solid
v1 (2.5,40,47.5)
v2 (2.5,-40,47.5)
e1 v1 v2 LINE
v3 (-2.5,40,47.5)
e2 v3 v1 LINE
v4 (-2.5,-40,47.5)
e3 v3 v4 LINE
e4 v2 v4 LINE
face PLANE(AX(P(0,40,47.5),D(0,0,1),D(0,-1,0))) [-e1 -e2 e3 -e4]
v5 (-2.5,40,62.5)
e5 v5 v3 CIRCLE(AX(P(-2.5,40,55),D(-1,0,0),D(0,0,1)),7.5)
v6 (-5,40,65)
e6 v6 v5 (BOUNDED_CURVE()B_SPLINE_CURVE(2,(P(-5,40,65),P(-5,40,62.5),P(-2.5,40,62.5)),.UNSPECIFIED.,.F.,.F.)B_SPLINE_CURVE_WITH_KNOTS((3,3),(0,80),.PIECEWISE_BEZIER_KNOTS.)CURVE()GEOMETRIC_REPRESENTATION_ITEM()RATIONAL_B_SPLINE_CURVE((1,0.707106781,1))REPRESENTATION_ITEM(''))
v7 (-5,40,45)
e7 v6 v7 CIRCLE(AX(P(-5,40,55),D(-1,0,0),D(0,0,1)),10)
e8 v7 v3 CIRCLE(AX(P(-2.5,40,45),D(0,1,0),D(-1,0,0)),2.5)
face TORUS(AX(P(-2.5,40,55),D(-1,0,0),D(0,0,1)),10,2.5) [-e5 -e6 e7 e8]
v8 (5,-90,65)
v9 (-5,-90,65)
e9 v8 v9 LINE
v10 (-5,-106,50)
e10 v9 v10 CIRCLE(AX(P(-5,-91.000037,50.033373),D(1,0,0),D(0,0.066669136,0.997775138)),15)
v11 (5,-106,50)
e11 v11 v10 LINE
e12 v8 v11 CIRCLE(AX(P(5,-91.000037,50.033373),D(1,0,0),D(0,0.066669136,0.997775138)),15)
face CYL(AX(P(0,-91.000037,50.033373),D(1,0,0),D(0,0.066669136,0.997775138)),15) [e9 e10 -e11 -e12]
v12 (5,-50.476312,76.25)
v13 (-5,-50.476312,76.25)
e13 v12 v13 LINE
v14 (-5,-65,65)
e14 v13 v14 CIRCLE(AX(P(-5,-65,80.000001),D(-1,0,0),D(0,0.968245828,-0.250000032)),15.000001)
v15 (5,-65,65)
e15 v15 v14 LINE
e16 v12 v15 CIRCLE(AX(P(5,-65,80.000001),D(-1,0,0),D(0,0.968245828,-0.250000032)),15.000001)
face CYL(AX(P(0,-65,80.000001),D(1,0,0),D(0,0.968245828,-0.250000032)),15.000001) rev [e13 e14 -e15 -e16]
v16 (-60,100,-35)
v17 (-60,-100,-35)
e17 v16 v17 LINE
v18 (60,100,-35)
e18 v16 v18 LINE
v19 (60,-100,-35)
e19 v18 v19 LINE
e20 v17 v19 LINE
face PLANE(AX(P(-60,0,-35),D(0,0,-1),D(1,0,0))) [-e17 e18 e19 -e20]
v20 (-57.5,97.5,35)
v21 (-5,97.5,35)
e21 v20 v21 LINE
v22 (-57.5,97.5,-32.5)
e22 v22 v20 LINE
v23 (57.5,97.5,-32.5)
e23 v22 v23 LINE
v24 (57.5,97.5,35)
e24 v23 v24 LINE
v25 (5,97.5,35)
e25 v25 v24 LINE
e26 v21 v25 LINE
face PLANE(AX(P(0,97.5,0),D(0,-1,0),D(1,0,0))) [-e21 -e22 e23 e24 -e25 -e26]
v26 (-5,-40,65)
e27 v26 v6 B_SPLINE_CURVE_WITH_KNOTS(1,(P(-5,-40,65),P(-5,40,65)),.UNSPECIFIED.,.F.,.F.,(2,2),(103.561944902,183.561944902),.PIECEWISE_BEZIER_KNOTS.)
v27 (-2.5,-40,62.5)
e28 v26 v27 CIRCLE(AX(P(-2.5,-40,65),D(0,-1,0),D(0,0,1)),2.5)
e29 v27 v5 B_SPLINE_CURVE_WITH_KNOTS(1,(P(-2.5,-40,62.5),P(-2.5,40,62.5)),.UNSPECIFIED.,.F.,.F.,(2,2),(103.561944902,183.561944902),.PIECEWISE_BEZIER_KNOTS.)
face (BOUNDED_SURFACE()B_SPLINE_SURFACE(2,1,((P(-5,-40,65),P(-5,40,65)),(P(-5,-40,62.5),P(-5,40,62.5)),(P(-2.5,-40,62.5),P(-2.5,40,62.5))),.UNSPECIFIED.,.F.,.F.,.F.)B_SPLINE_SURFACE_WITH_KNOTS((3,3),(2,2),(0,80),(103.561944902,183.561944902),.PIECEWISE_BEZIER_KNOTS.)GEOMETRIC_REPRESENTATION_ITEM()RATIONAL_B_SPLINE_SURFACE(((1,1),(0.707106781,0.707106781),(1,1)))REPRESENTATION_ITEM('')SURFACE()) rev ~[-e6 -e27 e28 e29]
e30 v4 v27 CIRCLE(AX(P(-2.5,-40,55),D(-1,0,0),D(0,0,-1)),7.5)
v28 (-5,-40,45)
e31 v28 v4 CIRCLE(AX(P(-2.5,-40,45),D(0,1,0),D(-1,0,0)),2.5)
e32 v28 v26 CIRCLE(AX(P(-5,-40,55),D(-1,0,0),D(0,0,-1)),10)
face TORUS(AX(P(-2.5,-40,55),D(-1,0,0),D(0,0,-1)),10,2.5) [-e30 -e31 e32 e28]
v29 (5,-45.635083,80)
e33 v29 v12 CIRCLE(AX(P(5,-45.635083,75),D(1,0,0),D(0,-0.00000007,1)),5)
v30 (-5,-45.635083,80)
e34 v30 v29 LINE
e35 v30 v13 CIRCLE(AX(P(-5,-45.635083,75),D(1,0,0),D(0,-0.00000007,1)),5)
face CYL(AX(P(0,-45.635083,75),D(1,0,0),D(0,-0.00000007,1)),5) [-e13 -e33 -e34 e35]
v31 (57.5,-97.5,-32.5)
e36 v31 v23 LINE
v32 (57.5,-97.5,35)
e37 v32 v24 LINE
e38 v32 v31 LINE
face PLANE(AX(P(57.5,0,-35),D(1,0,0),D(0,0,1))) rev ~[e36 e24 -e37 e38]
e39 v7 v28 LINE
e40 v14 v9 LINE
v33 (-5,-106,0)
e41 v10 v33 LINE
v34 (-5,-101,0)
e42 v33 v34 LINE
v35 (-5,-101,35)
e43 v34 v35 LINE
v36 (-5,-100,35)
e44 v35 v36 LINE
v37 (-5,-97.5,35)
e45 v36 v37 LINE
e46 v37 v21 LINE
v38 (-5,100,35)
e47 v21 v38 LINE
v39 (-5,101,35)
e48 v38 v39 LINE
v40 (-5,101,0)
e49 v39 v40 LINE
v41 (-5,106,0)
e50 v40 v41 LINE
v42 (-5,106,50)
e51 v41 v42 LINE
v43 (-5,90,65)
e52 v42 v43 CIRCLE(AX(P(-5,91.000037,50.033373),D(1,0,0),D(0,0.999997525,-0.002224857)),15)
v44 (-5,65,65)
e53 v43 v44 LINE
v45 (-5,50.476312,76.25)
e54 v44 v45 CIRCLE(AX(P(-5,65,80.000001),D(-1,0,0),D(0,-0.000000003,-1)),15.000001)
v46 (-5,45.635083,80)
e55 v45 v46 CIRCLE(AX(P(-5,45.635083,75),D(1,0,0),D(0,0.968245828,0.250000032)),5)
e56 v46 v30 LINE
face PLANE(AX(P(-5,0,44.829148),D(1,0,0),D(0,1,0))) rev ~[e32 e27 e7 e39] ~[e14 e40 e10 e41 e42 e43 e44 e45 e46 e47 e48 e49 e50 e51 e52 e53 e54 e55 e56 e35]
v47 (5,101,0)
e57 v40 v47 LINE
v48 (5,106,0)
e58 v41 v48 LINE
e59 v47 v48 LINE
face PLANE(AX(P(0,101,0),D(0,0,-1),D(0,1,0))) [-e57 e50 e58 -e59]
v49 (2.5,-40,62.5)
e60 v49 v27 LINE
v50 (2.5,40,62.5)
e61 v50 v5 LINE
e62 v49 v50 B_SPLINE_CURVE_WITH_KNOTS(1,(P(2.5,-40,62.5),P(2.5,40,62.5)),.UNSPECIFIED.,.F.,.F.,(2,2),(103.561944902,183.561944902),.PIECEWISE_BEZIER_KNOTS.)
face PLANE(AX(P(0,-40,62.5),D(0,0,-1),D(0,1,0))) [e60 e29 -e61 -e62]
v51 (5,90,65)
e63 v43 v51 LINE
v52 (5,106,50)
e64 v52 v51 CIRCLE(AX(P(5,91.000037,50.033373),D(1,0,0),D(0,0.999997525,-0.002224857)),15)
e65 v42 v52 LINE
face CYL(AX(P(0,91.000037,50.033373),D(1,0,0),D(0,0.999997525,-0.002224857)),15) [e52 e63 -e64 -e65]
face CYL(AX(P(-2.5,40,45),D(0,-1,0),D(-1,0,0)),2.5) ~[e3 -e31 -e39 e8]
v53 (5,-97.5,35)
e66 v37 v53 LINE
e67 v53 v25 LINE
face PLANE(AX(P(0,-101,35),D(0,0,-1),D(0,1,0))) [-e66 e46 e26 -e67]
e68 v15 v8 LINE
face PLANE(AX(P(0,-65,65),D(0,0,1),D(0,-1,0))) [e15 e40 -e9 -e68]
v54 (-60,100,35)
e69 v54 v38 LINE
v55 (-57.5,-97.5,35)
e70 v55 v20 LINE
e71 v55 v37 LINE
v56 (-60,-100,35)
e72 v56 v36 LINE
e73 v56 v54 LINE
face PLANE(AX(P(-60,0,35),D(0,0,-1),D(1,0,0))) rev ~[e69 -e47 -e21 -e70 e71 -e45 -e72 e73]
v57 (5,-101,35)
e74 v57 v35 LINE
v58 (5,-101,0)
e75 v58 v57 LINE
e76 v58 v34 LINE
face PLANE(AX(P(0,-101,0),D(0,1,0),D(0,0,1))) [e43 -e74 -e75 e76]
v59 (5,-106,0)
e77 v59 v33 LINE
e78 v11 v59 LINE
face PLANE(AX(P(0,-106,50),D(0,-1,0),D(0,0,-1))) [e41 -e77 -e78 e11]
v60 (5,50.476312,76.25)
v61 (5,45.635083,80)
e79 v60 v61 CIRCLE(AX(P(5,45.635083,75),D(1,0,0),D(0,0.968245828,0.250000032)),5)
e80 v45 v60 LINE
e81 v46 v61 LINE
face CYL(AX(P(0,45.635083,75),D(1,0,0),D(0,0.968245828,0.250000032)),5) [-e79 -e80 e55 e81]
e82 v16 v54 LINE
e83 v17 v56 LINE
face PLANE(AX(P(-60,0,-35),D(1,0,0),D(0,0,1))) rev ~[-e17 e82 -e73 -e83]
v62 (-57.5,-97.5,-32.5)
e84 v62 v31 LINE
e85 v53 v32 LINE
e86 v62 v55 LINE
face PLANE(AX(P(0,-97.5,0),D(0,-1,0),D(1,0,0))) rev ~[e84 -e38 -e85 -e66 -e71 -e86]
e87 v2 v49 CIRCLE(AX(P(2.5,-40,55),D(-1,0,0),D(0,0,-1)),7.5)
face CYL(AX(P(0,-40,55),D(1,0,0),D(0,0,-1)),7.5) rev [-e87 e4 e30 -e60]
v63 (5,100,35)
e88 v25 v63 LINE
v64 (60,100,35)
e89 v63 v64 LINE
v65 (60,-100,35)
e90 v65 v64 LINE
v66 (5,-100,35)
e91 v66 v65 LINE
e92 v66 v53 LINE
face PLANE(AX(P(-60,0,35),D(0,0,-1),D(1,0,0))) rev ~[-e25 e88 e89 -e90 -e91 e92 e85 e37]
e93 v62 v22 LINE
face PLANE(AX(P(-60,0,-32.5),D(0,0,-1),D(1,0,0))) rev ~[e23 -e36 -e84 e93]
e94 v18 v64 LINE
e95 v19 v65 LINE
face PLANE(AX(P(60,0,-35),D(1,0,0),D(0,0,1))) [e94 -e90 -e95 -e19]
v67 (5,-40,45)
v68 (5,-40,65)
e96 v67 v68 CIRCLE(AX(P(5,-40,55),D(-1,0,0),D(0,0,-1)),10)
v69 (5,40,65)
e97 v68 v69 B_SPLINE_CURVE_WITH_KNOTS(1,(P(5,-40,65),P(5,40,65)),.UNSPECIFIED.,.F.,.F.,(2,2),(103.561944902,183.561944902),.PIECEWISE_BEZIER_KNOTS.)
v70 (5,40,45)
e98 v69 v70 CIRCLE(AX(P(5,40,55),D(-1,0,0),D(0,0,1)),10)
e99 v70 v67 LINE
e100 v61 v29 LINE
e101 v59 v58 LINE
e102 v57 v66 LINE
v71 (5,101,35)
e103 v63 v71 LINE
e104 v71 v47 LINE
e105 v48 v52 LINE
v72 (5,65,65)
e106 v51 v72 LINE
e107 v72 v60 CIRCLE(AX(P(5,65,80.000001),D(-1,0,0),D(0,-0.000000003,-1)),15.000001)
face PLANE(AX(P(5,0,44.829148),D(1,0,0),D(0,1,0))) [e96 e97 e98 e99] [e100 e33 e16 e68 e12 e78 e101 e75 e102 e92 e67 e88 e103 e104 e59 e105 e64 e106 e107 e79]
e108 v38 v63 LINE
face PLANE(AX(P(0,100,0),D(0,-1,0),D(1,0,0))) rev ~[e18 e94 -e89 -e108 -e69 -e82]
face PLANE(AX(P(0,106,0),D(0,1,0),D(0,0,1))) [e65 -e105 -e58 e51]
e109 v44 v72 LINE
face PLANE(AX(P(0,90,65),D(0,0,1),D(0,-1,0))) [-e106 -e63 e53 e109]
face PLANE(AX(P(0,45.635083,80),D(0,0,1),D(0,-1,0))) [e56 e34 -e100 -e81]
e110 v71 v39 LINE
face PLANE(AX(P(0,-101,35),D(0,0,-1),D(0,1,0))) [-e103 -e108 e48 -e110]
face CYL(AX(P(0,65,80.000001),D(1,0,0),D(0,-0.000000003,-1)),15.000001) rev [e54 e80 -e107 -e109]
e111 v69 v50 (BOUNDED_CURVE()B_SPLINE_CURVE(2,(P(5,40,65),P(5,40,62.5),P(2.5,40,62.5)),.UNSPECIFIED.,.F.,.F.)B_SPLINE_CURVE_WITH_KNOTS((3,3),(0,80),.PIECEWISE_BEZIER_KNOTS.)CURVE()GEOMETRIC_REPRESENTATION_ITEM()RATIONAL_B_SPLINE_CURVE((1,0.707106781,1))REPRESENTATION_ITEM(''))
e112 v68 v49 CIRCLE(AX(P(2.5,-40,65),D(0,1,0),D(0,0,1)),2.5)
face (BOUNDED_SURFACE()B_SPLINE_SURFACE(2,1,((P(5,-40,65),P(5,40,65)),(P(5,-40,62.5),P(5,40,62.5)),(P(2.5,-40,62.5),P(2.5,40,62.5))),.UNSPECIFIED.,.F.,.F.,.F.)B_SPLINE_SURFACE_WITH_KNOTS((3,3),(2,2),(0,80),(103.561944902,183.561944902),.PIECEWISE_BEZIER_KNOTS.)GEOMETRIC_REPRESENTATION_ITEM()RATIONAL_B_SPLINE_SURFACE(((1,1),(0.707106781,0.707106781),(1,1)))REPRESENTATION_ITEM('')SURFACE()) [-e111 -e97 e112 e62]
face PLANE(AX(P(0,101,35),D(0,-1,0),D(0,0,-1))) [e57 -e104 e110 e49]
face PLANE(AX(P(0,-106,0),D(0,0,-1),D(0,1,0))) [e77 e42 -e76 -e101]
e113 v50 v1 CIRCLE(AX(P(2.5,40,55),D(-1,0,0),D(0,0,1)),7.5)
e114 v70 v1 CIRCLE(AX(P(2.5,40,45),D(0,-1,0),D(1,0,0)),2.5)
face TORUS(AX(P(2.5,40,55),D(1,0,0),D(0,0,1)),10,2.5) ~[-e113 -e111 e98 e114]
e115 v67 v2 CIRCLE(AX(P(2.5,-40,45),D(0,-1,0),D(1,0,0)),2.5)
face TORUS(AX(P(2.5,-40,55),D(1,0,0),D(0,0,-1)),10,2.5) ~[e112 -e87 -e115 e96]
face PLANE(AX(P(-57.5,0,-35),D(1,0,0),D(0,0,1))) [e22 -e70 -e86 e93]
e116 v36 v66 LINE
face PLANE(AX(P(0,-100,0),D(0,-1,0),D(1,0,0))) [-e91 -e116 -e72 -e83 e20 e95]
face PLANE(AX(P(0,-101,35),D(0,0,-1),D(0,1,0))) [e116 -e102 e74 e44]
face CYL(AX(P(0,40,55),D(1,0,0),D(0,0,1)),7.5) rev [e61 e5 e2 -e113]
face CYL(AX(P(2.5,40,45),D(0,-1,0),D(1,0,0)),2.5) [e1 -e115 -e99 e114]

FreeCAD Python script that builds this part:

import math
import FreeCAD as App
import Part
import Sketcher

V = App.Vector


def edges_at(feature, points):
    """Names of the edges that pass closest to the given points."""
    edges = feature.Shape.Edges
    near = lambda p: min(range(len(edges)), key=lambda i: edges[i].distToShape(Part.Vertex(*p))[0])
    return sorted({f"Edge{near(p) + 1}" for p in points})


def faces_at(feature, points):
    """Names of the faces that lie closest to the given points."""
    faces = feature.Shape.Faces
    near = lambda p: min(range(len(faces)), key=lambda i: faces[i].distToShape(Part.Vertex(*p))[0])
    return sorted({f"Face{near(p) + 1}" for p in points})

doc = App.newDocument("Part")
params = doc.addObject("Spreadsheet::Sheet", "Params")
for row, (alias, value) in enumerate([
    ("sketch1_width", "120 mm"),
    ("sketch1_height", "70 mm"),
    ("pad1_length", "200 mm"),
    ("thickness_wall", "2.5 mm"),
    ("sketch2_radius", "15 mm"),
    ("sketch2_radius2", "5 mm"),
    ("sketch2_radius3", "7.5 mm"),
    ("sketch2_width", "5 mm"),
    ("sketch2_width2", "25 mm"),
    ("pad2_length", "10 mm"),
    ("fillet_radius", "2.5 mm"),
], start=1):
    params.set(f"A{row}", alias)
    params.set(f"B{row}", "=" + value)
    params.setAlias(f"B{row}", alias)

body = doc.addObject("PartDesign::Body", "Body")

# Sketch on XZ plane
sketch1 = body.newObject("Sketcher::SketchObject", "Sketch")
sketch1.AttachmentSupport = (doc.getObject("XZ_Plane"), [""])
sketch1.MapMode = "FlatFace"
sketch1.addGeometry([
    Part.LineSegment(V(-60, 35, 0), V(-60, -35, 0)),
    Part.LineSegment(V(-60, -35, 0), V(60, -35, 0)),
    Part.LineSegment(V(60, -35, 0), V(60, 35, 0)),
    Part.LineSegment(V(60, 35, 0), V(-60, 35, 0)),
], False)
sketch1.addConstraint([
    Sketcher.Constraint("Coincident", 0, 2, 1, 1),
    Sketcher.Constraint("Coincident", 1, 2, 2, 1),
    Sketcher.Constraint("Coincident", 2, 2, 3, 1),
    Sketcher.Constraint("Coincident", 3, 2, 0, 1),
    Sketcher.Constraint("Vertical", 0),
    Sketcher.Constraint("Horizontal", 1),
    Sketcher.Constraint("Vertical", 2),
    Sketcher.Constraint("Horizontal", 3),
    Sketcher.Constraint("Symmetric", 0, 2, 2, 2, -1, 1),
    Sketcher.Constraint("DistanceX", 1, 1, 1, 2, 120.0),
    Sketcher.Constraint("DistanceY", 0, 2, 0, 1, 70.0),
])
sketch1.setExpression("Constraints[9]", "Params.sketch1_width")
sketch1.setExpression("Constraints[10]", "Params.sketch1_height")
pad1 = body.newObject("PartDesign::Pad", "Pad")
pad1.Profile = sketch1
pad1.setExpression("Length", "Params.pad1_length")
pad1.Midplane = True
doc.recompute()

thickness = body.newObject("PartDesign::Thickness", "Thickness")
thickness.Base = (pad1, faces_at(pad1, [(0, 0, 35)]))
thickness.setExpression("Value", "Params.thickness_wall")
thickness.Reversed = True
thickness.Join = "Arc"

# Sketch on YZ plane
sketch2 = body.newObject("Sketcher::SketchObject", "Sketch001")
sketch2.AttachmentSupport = (doc.getObject("YZ_Plane"), [""])
sketch2.MapMode = "FlatFace"
sketch2.addGeometry([
    Part.LineSegment(V(101, 35, 0), V(101, 0, 0)),  # 0
    Part.LineSegment(V(101, 0, 0), V(106, 0, 0)),  # 1
    Part.LineSegment(V(106, 0, 0), V(106, 50, 0)),  # 2
    Part.ArcOfCircle(Part.Circle(V(91.000037, 50.033373, 0), V(0, 0, 1), 15), math.radians(-0.127475), math.radians(93.822696)),  # 3
    Part.LineSegment(V(90, 65, 0), V(65, 65, 0)),  # 4
    Part.ArcOfCircle(Part.Circle(V(65, 80.000001, 0), V(0, 0, 1), 15.000001), math.radians(-165.522486), math.radians(-90)),  # 5
    Part.ArcOfCircle(Part.Circle(V(45.635083, 75, 0), V(0, 0, 1), 5), math.radians(14.477514), math.radians(89.999996)),  # 6
    Part.LineSegment(V(45.635083, 80, 0), V(-45.635083, 80, 0)),  # 7
    Part.ArcOfCircle(Part.Circle(V(-45.635083, 75, 0), V(0, 0, 1), 5), math.radians(90.000004), math.radians(165.522486)),  # 8
    Part.ArcOfCircle(Part.Circle(V(-65, 80.000001, 0), V(0, 0, 1), 15.000001), math.radians(-90), math.radians(-14.477514)),  # 9
    Part.LineSegment(V(-65, 65, 0), V(-90, 65, 0)),  # 10
    Part.ArcOfCircle(Part.Circle(V(-91.000037, 50.033373, 0), V(0, 0, 1), 15), math.radians(86.177304), math.radians(180.127475)),  # 11
    Part.LineSegment(V(-106, 50, 0), V(-106, 0, 0)),  # 12
    Part.LineSegment(V(-106, 0, 0), V(-101, 0, 0)),  # 13
    Part.LineSegment(V(-101, 0, 0), V(-101, 35, 0)),  # 14
    Part.LineSegment(V(-101, 35, 0), V(101, 35, 0)),  # 15
    Part.ArcOfCircle(Part.Circle(V(40, 55, 0), V(0, 0, 1), 7.5), math.radians(-90), math.radians(90)),  # 16
    Part.LineSegment(V(40, 47.5, 0), V(-40, 47.5, 0)),  # 17
    Part.ArcOfCircle(Part.Circle(V(-40, 55, 0), V(0, 0, 1), 7.5), math.radians(90), math.radians(270)),  # 18
    Part.LineSegment(V(-40, 62.5, 0), V(40, 62.5, 0)),  # 19
], False)
sketch2.addConstraint([
    Sketcher.Constraint("Coincident", 0, 2, 1, 1),
    Sketcher.Constraint("Coincident", 1, 2, 2, 1),
    Sketcher.Constraint("Coincident", 2, 2, 3, 1),
    Sketcher.Constraint("Coincident", 3, 2, 4, 1),
    Sketcher.Constraint("Tangent", 4, 2, 5, 2),
    Sketcher.Constraint("Tangent", 5, 1, 6, 1),
    Sketcher.Constraint("Tangent", 6, 2, 7, 1),
    Sketcher.Constraint("Tangent", 7, 2, 8, 1),
    Sketcher.Constraint("Tangent", 8, 2, 9, 2),
    Sketcher.Constraint("Tangent", 9, 1, 10, 1),
    Sketcher.Constraint("Coincident", 10, 2, 11, 1),
    Sketcher.Constraint("Coincident", 11, 2, 12, 1),
    Sketcher.Constraint("Coincident", 12, 2, 13, 1),
    Sketcher.Constraint("Coincident", 13, 2, 14, 1),
    Sketcher.Constraint("Coincident", 14, 2, 15, 1),
    Sketcher.Constraint("Coincident", 15, 2, 0, 1),
    Sketcher.Constraint("Tangent", 16, 1, 17, 1),
    Sketcher.Constraint("Tangent", 17, 2, 18, 2),
    Sketcher.Constraint("Tangent", 18, 1, 19, 1),
    Sketcher.Constraint("Tangent", 19, 2, 16, 2),
    Sketcher.Constraint("Vertical", 0),
    Sketcher.Constraint("Horizontal", 1),
    Sketcher.Constraint("Vertical", 2),
    Sketcher.Constraint("Horizontal", 4),
    Sketcher.Constraint("Horizontal", 7),
    Sketcher.Constraint("Horizontal", 10),
    Sketcher.Constraint("Vertical", 12),
    Sketcher.Constraint("Horizontal", 13),
    Sketcher.Constraint("Vertical", 14),
    Sketcher.Constraint("Horizontal", 15),
    Sketcher.Constraint("Horizontal", 17),
    Sketcher.Constraint("Horizontal", 19),
    Sketcher.Constraint("Equal", 3, 5),
    Sketcher.Constraint("Equal", 6, 8),
    Sketcher.Constraint("Equal", 5, 9),
    Sketcher.Constraint("Equal", 9, 11),
    Sketcher.Constraint("Symmetric", 1, 2, 12, 2, -1, 1),
    Sketcher.Constraint("Symmetric", 5, 3, 9, 3, -2),
    Sketcher.Constraint("Symmetric", 3, 3, 11, 3, -2),
    Sketcher.Constraint("Symmetric", 0, 2, 13, 2, -2),
    Sketcher.Constraint("Horizontal", 9, 3, 6, 2),
    Sketcher.Constraint("Radius", 3, 15.0),
    Sketcher.Constraint("Radius", 6, 5.0),
    Sketcher.Constraint("Radius", 16, 7.5),
    Sketcher.Constraint("DistanceX", 1, 1, 1, 2, 5.0),
    Sketcher.Constraint("DistanceX", 4, 2, 4, 1, 25.0),
    Sketcher.Constraint("DistanceX", 15, 1, 15, 2, 202.0),
    Sketcher.Constraint("DistanceX", 17, 2, 17, 1, 80.0),
    Sketcher.Constraint("DistanceY", 0, 2, 0, 1, 35.0),
    Sketcher.Constraint("DistanceY", 2, 1, 2, 2, 50.0),
    Sketcher.Constraint("DistanceX", -1, 1, 5, 3, 65.0),
    Sketcher.Constraint("DistanceY", -1, 1, 5, 3, 80.000001),
    Sketcher.Constraint("DistanceX", -1, 1, 16, 3, 40.0),
    Sketcher.Constraint("DistanceY", -1, 1, 16, 3, 55.0),
])
sketch2.setExpression("Constraints[41]", "Params.sketch2_radius")
sketch2.setExpression("Constraints[42]", "Params.sketch2_radius2")
sketch2.setExpression("Constraints[43]", "Params.sketch2_radius3")
sketch2.setExpression("Constraints[44]", "Params.sketch2_width")
sketch2.setExpression("Constraints[45]", "Params.sketch2_width2")
pad2 = body.newObject("PartDesign::Pad", "Pad001")
pad2.Profile = sketch2
pad2.setExpression("Length", "Params.pad2_length")
pad2.Midplane = True
doc.recompute()

fillet = body.newObject("PartDesign::Fillet", "Fillet")
fillet.Base = (pad2, edges_at(pad2, [(5, 0, 47.5), (-5, 0, 47.5)]))
fillet.setExpression("Radius", "Params.fillet_radius")

doc.recompute()
